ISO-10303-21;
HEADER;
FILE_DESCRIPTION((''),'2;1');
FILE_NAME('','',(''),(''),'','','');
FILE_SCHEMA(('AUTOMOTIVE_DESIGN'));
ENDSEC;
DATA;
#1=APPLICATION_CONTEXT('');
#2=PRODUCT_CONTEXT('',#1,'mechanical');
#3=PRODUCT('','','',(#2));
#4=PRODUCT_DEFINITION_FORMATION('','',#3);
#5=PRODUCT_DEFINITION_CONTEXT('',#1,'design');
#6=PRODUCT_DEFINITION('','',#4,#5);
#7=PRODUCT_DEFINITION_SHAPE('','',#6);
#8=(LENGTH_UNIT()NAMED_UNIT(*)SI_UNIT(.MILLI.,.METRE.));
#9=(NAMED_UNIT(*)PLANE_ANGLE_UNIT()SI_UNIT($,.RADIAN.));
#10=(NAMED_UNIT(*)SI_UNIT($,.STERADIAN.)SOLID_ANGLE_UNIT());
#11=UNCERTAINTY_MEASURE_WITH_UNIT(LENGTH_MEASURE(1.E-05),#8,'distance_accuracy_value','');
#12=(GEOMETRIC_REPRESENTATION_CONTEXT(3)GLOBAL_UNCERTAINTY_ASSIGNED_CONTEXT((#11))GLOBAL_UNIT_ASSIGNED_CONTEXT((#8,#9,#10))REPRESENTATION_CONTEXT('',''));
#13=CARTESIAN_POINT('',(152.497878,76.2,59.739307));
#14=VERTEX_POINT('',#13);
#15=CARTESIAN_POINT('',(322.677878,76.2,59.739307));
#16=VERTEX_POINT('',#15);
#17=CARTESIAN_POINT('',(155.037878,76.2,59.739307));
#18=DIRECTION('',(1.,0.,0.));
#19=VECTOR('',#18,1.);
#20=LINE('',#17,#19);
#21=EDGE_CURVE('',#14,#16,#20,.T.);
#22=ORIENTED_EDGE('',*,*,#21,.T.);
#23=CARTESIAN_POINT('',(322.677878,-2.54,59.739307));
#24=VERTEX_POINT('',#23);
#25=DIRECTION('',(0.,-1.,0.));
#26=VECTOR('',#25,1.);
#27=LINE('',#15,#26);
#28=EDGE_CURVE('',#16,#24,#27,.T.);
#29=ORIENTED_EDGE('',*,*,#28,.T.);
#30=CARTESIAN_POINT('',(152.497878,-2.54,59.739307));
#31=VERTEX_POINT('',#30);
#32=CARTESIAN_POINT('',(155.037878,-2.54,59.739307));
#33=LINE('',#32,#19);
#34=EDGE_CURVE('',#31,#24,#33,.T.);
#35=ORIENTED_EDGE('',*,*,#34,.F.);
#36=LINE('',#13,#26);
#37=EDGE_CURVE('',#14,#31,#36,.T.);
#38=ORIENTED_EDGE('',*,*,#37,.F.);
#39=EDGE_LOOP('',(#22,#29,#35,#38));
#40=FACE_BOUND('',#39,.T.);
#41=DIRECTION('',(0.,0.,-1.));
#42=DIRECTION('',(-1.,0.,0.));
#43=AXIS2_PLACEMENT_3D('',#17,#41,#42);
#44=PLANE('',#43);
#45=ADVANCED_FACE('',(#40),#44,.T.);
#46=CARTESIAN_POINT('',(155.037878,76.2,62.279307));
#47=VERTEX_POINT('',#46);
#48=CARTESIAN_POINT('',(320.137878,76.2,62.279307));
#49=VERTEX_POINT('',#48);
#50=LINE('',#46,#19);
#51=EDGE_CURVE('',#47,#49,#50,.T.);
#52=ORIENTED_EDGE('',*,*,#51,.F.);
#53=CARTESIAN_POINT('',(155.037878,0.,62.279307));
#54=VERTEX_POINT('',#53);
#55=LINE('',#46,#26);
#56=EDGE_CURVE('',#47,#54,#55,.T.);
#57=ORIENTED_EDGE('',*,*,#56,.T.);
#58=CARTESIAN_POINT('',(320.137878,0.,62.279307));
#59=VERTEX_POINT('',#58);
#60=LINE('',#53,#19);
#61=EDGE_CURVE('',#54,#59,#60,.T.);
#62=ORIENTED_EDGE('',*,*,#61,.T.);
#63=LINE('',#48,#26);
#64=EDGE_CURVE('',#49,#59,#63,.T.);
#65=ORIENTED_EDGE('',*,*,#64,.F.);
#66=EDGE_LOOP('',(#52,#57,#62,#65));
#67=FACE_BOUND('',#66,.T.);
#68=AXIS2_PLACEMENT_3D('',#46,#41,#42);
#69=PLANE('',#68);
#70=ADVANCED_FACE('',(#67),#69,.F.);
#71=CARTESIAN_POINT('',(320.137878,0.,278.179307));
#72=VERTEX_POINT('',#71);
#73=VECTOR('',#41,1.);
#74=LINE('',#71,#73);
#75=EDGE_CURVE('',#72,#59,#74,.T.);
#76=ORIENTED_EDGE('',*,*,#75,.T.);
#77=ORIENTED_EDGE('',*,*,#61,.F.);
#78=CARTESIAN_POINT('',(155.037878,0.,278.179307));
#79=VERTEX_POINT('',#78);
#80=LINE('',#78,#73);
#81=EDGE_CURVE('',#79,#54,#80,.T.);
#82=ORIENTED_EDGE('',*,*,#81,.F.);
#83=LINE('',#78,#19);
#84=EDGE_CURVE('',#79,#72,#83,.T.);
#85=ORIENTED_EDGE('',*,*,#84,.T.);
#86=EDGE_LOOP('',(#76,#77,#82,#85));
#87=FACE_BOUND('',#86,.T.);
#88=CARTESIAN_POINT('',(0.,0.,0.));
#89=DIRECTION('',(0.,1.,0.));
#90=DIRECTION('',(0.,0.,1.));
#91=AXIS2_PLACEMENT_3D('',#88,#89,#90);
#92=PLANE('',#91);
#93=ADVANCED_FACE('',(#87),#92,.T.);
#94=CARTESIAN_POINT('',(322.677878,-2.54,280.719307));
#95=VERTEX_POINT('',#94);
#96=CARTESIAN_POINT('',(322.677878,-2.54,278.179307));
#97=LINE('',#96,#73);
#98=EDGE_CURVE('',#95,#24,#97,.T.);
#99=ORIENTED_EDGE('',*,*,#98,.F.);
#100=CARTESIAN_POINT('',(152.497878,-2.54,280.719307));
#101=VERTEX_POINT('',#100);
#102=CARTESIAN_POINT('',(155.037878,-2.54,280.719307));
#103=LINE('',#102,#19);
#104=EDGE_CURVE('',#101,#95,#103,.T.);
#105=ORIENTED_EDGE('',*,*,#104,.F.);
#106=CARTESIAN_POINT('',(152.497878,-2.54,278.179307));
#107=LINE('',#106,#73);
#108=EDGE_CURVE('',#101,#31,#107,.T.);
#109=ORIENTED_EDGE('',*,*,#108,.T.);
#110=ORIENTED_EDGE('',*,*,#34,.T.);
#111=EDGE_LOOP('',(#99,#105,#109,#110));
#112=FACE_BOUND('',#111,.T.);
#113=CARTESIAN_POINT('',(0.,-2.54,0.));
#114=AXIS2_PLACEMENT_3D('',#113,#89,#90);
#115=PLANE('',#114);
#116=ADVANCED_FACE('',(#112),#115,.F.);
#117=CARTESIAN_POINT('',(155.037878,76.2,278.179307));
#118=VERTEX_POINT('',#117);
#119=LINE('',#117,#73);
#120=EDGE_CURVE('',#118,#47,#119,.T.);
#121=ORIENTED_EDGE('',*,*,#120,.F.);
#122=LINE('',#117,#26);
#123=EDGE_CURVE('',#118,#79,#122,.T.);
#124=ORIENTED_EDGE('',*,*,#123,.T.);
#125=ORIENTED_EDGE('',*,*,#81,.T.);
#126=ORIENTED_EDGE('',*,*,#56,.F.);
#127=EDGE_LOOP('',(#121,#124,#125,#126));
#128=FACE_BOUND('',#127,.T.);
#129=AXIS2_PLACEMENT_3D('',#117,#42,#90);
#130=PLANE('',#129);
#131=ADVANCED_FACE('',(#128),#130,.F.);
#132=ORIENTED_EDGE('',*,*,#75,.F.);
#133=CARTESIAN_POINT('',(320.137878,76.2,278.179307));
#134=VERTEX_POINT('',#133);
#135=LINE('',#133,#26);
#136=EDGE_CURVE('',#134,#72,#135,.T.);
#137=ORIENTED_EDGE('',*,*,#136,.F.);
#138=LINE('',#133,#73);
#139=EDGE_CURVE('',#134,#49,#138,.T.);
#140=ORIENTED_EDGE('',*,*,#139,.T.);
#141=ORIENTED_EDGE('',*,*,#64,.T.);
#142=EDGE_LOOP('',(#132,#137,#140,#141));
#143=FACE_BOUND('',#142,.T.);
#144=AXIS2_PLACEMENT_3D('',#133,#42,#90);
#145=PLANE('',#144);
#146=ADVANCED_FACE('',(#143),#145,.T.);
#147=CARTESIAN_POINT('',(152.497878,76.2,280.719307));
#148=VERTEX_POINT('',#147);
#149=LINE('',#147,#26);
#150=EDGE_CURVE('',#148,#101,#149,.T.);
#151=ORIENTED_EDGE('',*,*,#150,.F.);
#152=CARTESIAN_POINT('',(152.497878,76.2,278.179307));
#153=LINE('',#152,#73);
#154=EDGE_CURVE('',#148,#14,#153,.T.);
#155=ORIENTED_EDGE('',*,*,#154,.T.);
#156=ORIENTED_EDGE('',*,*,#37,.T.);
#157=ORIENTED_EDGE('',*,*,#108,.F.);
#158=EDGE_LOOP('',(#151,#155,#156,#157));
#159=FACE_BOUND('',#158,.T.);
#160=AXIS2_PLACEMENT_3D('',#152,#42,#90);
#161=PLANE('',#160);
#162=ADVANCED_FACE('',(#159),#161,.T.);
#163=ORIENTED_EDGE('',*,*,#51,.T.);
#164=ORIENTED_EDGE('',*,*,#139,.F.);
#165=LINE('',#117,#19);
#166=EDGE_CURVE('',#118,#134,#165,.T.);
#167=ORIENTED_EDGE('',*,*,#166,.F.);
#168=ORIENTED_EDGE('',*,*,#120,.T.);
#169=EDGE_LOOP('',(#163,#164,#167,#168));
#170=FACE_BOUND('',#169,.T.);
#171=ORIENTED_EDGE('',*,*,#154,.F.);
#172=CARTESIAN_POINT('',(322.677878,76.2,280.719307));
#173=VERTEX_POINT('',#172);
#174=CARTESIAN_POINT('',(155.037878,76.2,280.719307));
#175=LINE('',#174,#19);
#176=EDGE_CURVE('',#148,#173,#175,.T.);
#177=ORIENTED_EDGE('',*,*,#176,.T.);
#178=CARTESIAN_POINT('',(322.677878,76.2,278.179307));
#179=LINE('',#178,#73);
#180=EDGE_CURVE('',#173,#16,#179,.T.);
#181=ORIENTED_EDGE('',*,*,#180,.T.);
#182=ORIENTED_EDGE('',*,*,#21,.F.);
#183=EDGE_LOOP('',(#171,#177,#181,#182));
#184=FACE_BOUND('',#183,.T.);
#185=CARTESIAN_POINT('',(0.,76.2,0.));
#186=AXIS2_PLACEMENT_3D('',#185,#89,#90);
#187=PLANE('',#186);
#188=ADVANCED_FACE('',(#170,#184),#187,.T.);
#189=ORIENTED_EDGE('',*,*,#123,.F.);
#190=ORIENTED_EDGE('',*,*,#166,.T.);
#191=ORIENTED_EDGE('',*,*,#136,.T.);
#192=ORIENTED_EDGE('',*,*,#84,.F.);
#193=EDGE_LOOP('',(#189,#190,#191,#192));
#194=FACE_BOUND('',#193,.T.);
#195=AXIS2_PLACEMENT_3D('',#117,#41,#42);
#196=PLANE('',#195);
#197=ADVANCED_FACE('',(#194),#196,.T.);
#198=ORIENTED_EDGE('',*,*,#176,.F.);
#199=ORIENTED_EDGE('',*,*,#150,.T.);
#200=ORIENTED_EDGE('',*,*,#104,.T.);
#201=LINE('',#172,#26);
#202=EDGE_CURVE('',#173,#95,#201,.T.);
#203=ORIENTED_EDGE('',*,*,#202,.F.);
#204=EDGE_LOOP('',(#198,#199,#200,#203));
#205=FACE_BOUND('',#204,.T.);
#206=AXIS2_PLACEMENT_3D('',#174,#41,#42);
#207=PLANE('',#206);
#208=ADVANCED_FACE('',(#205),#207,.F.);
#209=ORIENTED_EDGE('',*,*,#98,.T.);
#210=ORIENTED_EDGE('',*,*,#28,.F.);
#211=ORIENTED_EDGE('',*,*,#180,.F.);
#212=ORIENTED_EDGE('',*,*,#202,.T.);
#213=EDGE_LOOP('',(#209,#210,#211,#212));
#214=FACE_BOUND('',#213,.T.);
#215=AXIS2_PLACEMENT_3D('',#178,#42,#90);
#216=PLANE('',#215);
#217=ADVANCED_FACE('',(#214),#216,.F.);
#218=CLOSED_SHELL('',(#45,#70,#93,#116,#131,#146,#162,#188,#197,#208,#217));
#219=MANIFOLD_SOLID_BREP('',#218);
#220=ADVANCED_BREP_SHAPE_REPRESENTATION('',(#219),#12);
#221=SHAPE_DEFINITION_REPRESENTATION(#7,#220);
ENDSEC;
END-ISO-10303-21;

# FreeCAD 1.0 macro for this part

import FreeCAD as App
import Part
import Sketcher
Q = App.Units.Quantity


def faces_at(feature, points):
    """Names of the faces that lie closest to the given points."""
    faces = feature.Shape.Faces
    near = lambda p: min(range(len(faces)), key=lambda i: faces[i].distToShape(Part.Vertex(*p))[0])
    return sorted({f"Face{near(p) + 1}" for p in points})

doc = App.newDocument("Part")
params = doc.addObject("Spreadsheet::Sheet", "Params")
for row, (alias, value) in enumerate([
    ("sketch1_width", "6.5 in"),
    ("sketch1_height", "8.5 in"),
    ("pad1_length", "3 in"),
    ("thickness_wall", "0.1 in"),
], start=1):
    params.set(f"A{row}", alias)
    params.set(f"B{row}", "=" + value)
    params.setAlias(f"B{row}", alias)

body = doc.addObject("PartDesign::Body", "Body")

# Sketch on XZ plane
sketch1 = body.newObject("Sketcher::SketchObject", "Sketch")
sketch1.AttachmentSupport = (doc.getObject("XZ_Plane"), [""])
sketch1.MapMode = "FlatFace"
sketch1.addGeometry([
    Part.LineSegment(App.Vector(155, 62, 0), App.Vector(155, 278, 0)),
    Part.LineSegment(App.Vector(155, 278, 0), App.Vector(320, 278, 0)),
    Part.LineSegment(App.Vector(320, 278, 0), App.Vector(320, 62, 0)),
    Part.LineSegment(App.Vector(320, 62, 0), App.Vector(155, 62, 0)),
], False)
sketch1.addConstraint([
    Sketcher.Constraint("Coincident", 0, 2, 1, 1),
    Sketcher.Constraint("Coincident", 1, 2, 2, 1),
    Sketcher.Constraint("Coincident", 2, 2, 3, 1),
    Sketcher.Constraint("Coincident", 3, 2, 0, 1),
    Sketcher.Constraint("Vertical", 0),
    Sketcher.Constraint("Horizontal", 1),
    Sketcher.Constraint("Vertical", 2),
    Sketcher.Constraint("Horizontal", 3),
    Sketcher.Constraint("DistanceX", 1, 1, 1, 2, Q("6.5 in")),
    Sketcher.Constraint("DistanceY", 0, 1, 0, 2, Q("8.5 in")),
    Sketcher.Constraint("DistanceX", -1, 1, 0, 2, Q("155.037878 mm")),
    Sketcher.Constraint("DistanceY", -1, 1, 0, 2, Q("278.179307 mm")),
])
sketch1.setExpression("Constraints[8]", "Params.sketch1_width")
sketch1.setExpression("Constraints[9]", "Params.sketch1_height")
pad1 = body.newObject("PartDesign::Pad", "Pad")
pad1.Profile = sketch1
pad1.setExpression("Length", "Params.pad1_length")
pad1.Reversed = True
doc.recompute()

thickness = body.newObject("PartDesign::Thickness", "Thickness")
thickness.Base = (pad1, faces_at(pad1, [(237.588, 76.2, 170.229)]))
thickness.setExpression("Value", "Params.thickness_wall")
thickness.Reversed = False
thickness.Join = "Intersection"

doc.recompute()
